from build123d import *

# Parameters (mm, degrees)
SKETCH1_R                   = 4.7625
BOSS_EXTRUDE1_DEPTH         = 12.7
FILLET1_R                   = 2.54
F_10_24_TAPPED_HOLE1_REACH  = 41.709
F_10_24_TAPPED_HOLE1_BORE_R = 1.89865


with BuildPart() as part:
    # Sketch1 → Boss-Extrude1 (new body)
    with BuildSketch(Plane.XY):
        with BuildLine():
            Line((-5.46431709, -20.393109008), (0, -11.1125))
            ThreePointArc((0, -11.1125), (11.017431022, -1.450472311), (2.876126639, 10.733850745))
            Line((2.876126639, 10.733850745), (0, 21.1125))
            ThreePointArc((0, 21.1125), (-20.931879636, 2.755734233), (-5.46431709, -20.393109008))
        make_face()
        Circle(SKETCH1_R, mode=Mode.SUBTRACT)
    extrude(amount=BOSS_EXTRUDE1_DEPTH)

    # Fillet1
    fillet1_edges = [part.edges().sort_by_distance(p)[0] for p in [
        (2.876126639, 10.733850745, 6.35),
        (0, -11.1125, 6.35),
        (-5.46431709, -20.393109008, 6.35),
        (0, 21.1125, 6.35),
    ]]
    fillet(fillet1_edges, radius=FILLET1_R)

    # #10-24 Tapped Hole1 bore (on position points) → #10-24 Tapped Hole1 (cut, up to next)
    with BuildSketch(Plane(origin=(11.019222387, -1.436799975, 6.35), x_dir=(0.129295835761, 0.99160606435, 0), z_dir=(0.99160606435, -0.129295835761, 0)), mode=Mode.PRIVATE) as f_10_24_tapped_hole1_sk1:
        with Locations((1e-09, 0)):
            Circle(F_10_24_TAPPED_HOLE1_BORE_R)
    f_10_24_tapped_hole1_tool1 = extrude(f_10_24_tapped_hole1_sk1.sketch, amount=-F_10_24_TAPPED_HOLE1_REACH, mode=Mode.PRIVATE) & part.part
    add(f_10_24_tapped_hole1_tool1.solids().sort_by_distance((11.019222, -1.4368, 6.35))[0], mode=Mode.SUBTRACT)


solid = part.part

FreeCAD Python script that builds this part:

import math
import FreeCAD as App
import Part
import Sketcher
from FreeCAD import Vector
Q = App.Units.Quantity


def edges_at(feature, points):
    """Names of the edges that pass closest to the given points."""
    edges = feature.Shape.Edges
    near = lambda p: min(range(len(edges)), key=lambda i: edges[i].distToShape(Part.Vertex(*p))[0])
    return sorted({f"Edge{near(p) + 1}" for p in points})

doc = App.newDocument("Part")
body = doc.addObject("PartDesign::Body", "Body")

# Sketch on XY plane
sketch1 = doc.addObject("Sketcher::SketchObject", "Sketch")
body.addObject(sketch1)
sketch1.AttachmentSupport = (doc.XY_Plane, [""])
sketch1.MapMode = "FlatFace"
sketch1.addGeometry(Part.LineSegment(Vector(-5.464317, -20.393109, 0), Vector(0, -11.1125, 0)), False)
sketch1.addGeometry(Part.ArcOfCircle(Part.Circle(Vector(0, 0, 0), Vector(0, 0, 1), 11.1125), math.radians(-90), math.radians(75)), False)
sketch1.addGeometry(Part.LineSegment(Vector(2.876127, 10.733851, 0), Vector(0, 21.1125, 0)), False)
sketch1.addGeometry(Part.ArcOfCircle(Part.Circle(Vector(0, 0, 0), Vector(0, 0, 1), 21.1125), math.radians(90), math.radians(255)), False)
sketch1.addGeometry(Part.Circle(Vector(0, 0, 0), Vector(0, 0, 1), 4.7625), False)
sketch1.addConstraint(Sketcher.Constraint("Coincident", 0, 2, 1, 1))
sketch1.addConstraint(Sketcher.Constraint("Coincident", 1, 2, 2, 1))
sketch1.addConstraint(Sketcher.Constraint("Coincident", 2, 2, 3, 1))
sketch1.addConstraint(Sketcher.Constraint("Coincident", 3, 2, 0, 1))
sketch1.addConstraint(Sketcher.Constraint("Coincident", 1, 3, -1, 1))
sketch1.addConstraint(Sketcher.Constraint("Coincident", 3, 3, -1, 1))
sketch1.addConstraint(Sketcher.Constraint("Coincident", 4, 3, -1, 1))
sketch1.addConstraint(Sketcher.Constraint("PointOnObject", 0, 2, -2))
sketch1.addConstraint(Sketcher.Constraint("PointOnObject", 2, 2, -2))
sketch1.addConstraint(Sketcher.Constraint("Equal", 0, 2))
sketch1.addConstraint(Sketcher.Constraint("Diameter", 4, Q("0.375 in")))
sketch1.addConstraint(Sketcher.Constraint("Radius", 1, Q("0.4375 in")))
sketch1.addConstraint(Sketcher.Constraint("Radius", 3, 21.1125))
sketch1.addConstraint(Sketcher.Constraint("DistanceY", -1, 1, 1, 2, 10.733851))
pad1 = doc.addObject("PartDesign::Pad", "Pad")
body.addObject(pad1)
pad1.Profile = sketch1
pad1.Length = Q("0.5 in")
doc.recompute()

fillet = doc.addObject("PartDesign::Fillet", "Fillet")
body.addObject(fillet)
fillet.Base = (pad1, edges_at(pad1, [
    (2.876, 10.734, 6.35),
    (0, -11.113, 6.35),
    (-5.464, -20.393, 6.35),
    (0, 21.113, 6.35),
]))
fillet.Radius = Q("0.1 in")

# Sketch on an angled plane
sketch2 = doc.addObject("Sketcher::SketchObject", "Sketch001")
body.addObject(sketch2)
sketch2.Placement = App.Placement(Vector(11.019222, -1.4368, 6.35), App.Rotation(Vector(0.129295836, 0.991606064, 0), Vector(0, 0, 0.999999999), Vector(0.991606064, -0.129295836, 0), "ZXY"))
sketch2.addGeometry(Part.Circle(Vector(0, 0, 0), Vector(0, 0, 1), 1.89865), False)
sketch2.addConstraint(Sketcher.Constraint("Coincident", 0, 3, -1, 1))
sketch2.addConstraint(Sketcher.Constraint("Diameter", 0, Q("0.1495 in")))
pocket1 = doc.addObject("PartDesign::Pocket", "Pocket")
body.addObject(pocket1)
pocket1.Profile = sketch2
pocket1.Length = 6.744831

doc.recompute()
